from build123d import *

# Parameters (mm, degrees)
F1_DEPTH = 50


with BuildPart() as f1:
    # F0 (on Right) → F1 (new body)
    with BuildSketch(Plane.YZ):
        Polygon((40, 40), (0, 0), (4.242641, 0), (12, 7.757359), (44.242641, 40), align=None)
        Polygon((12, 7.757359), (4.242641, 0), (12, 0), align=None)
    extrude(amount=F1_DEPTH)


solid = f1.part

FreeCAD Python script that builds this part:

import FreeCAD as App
import Part
import Sketcher
from FreeCAD import Vector
Q = App.Units.Quantity

doc = App.newDocument("Part")
params = doc.addObject("Spreadsheet::Sheet", "Params")
for row, (alias, value) in enumerate([
    ("sketch1_width", "12 mm"),
    ("pad1_length", "50 mm"),
], start=1):
    params.set(f"A{row}", alias)
    params.set(f"B{row}", "=" + value)
    params.setAlias(f"B{row}", alias)

body = doc.addObject("PartDesign::Body", "Body")

sketch1 = doc.addObject("Sketcher::SketchObject", "Sketch")
body.addObject(sketch1)
sketch1.AttachmentSupport = (doc.YZ_Plane, [""])
sketch1.MapMode = "FlatFace"
sketch1.addGeometry([
    Part.LineSegment(Vector(40, 40, 0), Vector(0, 0, 0)),
    Part.LineSegment(Vector(0, 0, 0), Vector(12, 0, 0)),
    Part.LineSegment(Vector(12, 0, 0), Vector(12, 7.757359, 0)),
    Part.LineSegment(Vector(12, 7.757359, 0), Vector(44.242641, 40, 0)),
    Part.LineSegment(Vector(44.242641, 40, 0), Vector(40, 40, 0)),
], False)
sketch1.addConstraint([
    Sketcher.Constraint("Coincident", 0, 2, 1, 1),
    Sketcher.Constraint("Coincident", 1, 2, 2, 1),
    Sketcher.Constraint("Coincident", 2, 2, 3, 1),
    Sketcher.Constraint("Coincident", 3, 2, 4, 1),
    Sketcher.Constraint("Coincident", 4, 2, 0, 1),
    Sketcher.Constraint("Horizontal", 1),
    Sketcher.Constraint("Vertical", 2),
    Sketcher.Constraint("Horizontal", 4),
    Sketcher.Constraint("Coincident", 0, 2, -1, 1),
    Sketcher.Constraint("Parallel", 0, 3),
    Sketcher.Constraint("DistanceX", 1, 1, 1, 2, Q("12 mm")),
    Sketcher.Constraint("Angle", 0, Q("-135 deg")),
    Sketcher.Constraint("DistanceY", -1, 1, 3, 2, Q("40 mm")),
    Sketcher.Constraint("DistanceX", 4, 2, 4, 1, Q("4.242641 mm")),
])
sketch1.setExpression("Constraints[10]", "Params.sketch1_width")
pad1 = doc.addObject("PartDesign::Pad", "Pad")
body.addObject(pad1)
pad1.Profile = sketch1
pad1.setExpression("Length", "Params.pad1_length")

doc.recompute()
